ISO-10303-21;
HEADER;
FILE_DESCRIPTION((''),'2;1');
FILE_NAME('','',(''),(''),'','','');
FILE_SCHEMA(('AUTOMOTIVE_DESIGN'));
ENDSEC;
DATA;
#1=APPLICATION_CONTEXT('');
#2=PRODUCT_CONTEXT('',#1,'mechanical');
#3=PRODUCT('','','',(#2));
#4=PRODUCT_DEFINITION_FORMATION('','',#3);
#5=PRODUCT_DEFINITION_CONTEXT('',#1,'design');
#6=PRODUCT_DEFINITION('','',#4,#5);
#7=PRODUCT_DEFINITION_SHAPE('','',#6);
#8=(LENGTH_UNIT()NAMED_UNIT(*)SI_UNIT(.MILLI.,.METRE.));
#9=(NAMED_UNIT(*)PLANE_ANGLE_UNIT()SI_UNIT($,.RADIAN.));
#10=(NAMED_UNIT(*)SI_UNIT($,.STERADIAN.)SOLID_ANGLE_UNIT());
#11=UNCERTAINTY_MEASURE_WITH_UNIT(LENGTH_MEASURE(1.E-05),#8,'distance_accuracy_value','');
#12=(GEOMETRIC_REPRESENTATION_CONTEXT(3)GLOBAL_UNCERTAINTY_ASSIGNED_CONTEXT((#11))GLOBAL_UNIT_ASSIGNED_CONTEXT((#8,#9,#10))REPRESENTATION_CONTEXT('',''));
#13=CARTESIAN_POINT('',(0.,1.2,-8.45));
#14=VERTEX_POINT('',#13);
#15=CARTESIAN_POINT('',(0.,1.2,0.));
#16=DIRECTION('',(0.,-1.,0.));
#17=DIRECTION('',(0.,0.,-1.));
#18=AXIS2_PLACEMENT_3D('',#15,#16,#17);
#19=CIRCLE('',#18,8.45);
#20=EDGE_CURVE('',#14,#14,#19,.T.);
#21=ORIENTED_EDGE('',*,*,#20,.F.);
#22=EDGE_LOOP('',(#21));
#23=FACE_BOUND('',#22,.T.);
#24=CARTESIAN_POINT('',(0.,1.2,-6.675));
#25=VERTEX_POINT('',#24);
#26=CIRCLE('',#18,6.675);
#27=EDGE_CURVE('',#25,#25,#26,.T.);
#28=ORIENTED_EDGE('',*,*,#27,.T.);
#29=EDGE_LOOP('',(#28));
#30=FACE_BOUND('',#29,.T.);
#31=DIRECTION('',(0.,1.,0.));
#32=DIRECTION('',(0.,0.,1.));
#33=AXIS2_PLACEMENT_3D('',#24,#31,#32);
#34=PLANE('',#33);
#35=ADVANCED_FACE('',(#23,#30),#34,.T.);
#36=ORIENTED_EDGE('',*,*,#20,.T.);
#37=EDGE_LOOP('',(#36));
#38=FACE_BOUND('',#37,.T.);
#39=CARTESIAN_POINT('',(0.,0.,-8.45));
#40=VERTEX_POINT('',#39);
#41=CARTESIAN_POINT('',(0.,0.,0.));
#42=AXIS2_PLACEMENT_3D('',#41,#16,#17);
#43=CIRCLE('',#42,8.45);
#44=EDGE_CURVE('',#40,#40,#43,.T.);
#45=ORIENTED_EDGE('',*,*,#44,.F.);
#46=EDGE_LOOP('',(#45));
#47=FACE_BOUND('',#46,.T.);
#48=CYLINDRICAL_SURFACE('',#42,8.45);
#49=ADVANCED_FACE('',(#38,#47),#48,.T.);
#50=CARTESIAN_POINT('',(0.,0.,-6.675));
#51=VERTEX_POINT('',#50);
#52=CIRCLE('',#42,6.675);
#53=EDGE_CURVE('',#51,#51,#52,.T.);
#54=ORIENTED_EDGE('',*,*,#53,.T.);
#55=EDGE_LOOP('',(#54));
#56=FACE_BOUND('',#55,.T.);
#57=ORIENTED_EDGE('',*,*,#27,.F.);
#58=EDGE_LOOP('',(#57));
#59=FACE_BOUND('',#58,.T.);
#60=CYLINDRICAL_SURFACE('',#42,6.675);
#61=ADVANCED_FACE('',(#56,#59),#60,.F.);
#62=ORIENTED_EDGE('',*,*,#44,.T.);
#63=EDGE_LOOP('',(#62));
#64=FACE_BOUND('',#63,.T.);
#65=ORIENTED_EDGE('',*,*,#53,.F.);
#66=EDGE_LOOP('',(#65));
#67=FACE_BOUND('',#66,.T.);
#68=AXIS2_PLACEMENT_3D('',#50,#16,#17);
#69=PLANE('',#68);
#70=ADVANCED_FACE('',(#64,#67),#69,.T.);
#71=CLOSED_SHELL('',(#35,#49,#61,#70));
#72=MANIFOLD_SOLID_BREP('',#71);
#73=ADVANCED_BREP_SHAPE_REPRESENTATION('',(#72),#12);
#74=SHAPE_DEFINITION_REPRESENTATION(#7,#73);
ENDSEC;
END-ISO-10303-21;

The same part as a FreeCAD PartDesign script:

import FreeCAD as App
import Part
import Sketcher
from FreeCAD import Vector
Q = App.Units.Quantity


def add_polygon(sketch, points):
    """Adds a closed chain of lines whose ends are joined by coincident constraints."""
    first, n = sketch.GeometryCount, len(points)
    for a, b in zip(points, points[1:] + points[:1]):
        sketch.addGeometry(Part.LineSegment(App.Vector(*a, 0), App.Vector(*b, 0)), False)
    for i in range(n):
        sketch.addConstraint(Sketcher.Constraint("Coincident", first + i, 2, first + (i + 1) % n, 1))

doc = App.newDocument("Part")
params = doc.addObject("Spreadsheet::Sheet", "Params")
for row, (alias, value) in enumerate([
    ("sketch1_width", "1.2 mm"),
    ("revolution_angle", "360 deg"),
], start=1):
    params.set(f"A{row}", alias)
    params.set(f"B{row}", "=" + value)
    params.setAlias(f"B{row}", alias)

body = doc.addObject("PartDesign::Body", "Body")

sketch1 = body.newObject("Sketcher::SketchObject", "Sketch")
sketch1.AttachmentSupport = (doc.getObject("YZ_Plane"), [""])
sketch1.MapMode = "FlatFace"
add_polygon(sketch1, [(1.2, -6.7), (0, -6.7), (0, -8.4), (1.2, -8.4)])
sketch1.addConstraint([
    Sketcher.Constraint("Horizontal", 0),
    Sketcher.Constraint("Vertical", 1),
    Sketcher.Constraint("Horizontal", 2),
    Sketcher.Constraint("Vertical", 3),
    Sketcher.Constraint("PointOnObject", 0, 2, -2),
    Sketcher.Constraint("DistanceX", 0, 2, 0, 1, Q("1.2 mm")),
    Sketcher.Constraint("DistanceY", 1, 2, 1, 1, Q("1.775 mm")),
    Sketcher.Constraint("DistanceY", 1, 2, -1, 1, Q("8.45 mm")),
])
sketch1.setExpression("Constraints[9]", "Params.sketch1_width")
revolution = body.newObject("PartDesign::Revolution", "Revolution")
revolution.Profile = sketch1
revolution.ReferenceAxis = (sketch1, ["H_Axis"])
revolution.setExpression("Angle", "Params.revolution_angle")

doc.recompute()
